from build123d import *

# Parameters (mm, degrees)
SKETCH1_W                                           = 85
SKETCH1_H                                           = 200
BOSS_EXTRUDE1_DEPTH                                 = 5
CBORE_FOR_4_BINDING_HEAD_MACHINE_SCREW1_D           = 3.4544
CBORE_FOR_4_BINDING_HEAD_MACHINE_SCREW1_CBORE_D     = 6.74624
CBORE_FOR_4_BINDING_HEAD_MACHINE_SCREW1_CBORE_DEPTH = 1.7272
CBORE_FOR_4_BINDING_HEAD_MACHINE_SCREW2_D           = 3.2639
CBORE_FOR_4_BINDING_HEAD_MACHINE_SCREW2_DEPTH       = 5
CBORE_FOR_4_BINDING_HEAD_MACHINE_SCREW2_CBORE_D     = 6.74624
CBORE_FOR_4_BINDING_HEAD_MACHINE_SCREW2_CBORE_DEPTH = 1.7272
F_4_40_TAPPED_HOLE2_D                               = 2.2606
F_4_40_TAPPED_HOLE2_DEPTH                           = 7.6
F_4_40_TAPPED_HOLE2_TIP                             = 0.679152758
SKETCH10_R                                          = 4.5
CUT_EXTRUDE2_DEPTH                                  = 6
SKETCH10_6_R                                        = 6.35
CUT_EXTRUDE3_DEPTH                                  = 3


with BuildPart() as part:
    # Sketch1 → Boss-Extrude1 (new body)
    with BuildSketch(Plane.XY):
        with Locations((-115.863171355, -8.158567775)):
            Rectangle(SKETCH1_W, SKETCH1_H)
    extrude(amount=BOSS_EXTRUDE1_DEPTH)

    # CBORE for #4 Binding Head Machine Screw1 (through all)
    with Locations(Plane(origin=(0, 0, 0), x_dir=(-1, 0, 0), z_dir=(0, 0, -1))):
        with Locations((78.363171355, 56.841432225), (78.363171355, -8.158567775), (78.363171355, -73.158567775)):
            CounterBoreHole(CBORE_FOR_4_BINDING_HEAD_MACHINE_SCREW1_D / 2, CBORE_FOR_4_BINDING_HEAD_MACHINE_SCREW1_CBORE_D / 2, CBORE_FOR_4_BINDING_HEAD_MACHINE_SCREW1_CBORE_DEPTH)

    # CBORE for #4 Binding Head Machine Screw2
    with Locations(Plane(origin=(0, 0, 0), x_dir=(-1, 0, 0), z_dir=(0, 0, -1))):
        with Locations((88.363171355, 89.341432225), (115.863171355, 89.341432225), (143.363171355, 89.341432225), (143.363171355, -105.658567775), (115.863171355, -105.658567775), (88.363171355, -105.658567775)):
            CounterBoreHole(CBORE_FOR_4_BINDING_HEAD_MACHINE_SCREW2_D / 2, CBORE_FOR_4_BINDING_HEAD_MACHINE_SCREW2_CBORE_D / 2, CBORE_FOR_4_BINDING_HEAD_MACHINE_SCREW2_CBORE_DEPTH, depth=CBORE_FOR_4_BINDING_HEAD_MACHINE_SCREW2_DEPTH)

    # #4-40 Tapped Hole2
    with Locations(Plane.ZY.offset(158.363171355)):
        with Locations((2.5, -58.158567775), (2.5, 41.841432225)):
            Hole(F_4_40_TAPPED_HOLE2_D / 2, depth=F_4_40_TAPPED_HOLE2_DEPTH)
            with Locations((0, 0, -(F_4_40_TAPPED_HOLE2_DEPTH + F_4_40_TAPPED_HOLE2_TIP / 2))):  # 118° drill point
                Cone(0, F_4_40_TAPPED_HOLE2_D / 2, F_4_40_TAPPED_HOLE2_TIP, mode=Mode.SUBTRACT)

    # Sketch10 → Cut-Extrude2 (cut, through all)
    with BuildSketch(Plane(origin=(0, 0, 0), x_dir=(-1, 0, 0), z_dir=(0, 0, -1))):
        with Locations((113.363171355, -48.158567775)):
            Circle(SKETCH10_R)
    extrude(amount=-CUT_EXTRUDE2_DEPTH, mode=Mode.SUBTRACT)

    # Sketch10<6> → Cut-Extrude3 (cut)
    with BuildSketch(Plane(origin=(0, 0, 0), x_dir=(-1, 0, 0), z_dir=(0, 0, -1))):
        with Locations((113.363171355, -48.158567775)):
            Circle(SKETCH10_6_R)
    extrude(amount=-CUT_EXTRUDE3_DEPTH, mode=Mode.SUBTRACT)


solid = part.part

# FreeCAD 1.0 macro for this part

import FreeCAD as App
import Part
import Sketcher
from FreeCAD import Vector


def add_polygon(sketch, points):
    """Adds a closed chain of lines whose ends are joined by coincident constraints."""
    first, n = sketch.GeometryCount, len(points)
    for a, b in zip(points, points[1:] + points[:1]):
        sketch.addGeometry(Part.LineSegment(App.Vector(*a, 0), App.Vector(*b, 0)), False)
    for i in range(n):
        sketch.addConstraint(Sketcher.Constraint("Coincident", first + i, 2, first + (i + 1) % n, 1))

doc = App.newDocument("Part")
body = doc.addObject("PartDesign::Body", "Body")

sketch1 = body.newObject("Sketcher::SketchObject", "Sketch")
sketch1.AttachmentSupport = (doc.getObject("XY_Plane"), [""])
sketch1.MapMode = "FlatFace"
add_polygon(sketch1, [(-158.363171, 91.841432), (-158.363171, -108.158568), (-73.363171, -108.158568), (-73.363171, 91.841432)])
sketch1.addConstraint([
    Sketcher.Constraint("Vertical", 0),
    Sketcher.Constraint("Horizontal", 1),
    Sketcher.Constraint("Vertical", 2),
    Sketcher.Constraint("Horizontal", 3),
    Sketcher.Constraint("DistanceX", 1, 1, 1, 2, 85.0),
    Sketcher.Constraint("DistanceY", 0, 2, 0, 1, 200.0),
    Sketcher.Constraint("DistanceX", 0, 2, -1, 1, 158.363171),
    Sketcher.Constraint("DistanceY", 0, 2, -1, 1, 108.158568),
])
pad1 = body.newObject("PartDesign::Pad", "Pad")
pad1.Profile = sketch1
pad1.Length = 5

sketch2 = body.newObject("Sketcher::SketchObject", "Sketch001")
sketch2.AttachmentSupport = (doc.getObject("XY_Plane"), [""])
sketch2.MapMode = "FlatFace"
sketch2.addGeometry([
    Part.Circle(Vector(-78.363171, 56.841432, 0), Vector(0, 0, 1), 1.7272),
    Part.Circle(Vector(-78.363171, -8.158568, 0), Vector(0, 0, 1), 1.7272),
    Part.Circle(Vector(-78.363171, -73.158568, 0), Vector(0, 0, 1), 1.7272),
], False)
sketch2.addConstraint([
    Sketcher.Constraint("Equal", 0, 1),
    Sketcher.Constraint("Equal", 1, 2),
    Sketcher.Constraint("Vertical", 0, 3, 1, 3),
    Sketcher.Constraint("Vertical", 1, 3, 2, 3),
    Sketcher.Constraint("DistanceY", 1, 3, 0, 3, 65.0),
    Sketcher.Constraint("DistanceY", 2, 3, 1, 3, 65.0),
    Sketcher.Constraint("Diameter", 0, 3.4544),
    Sketcher.Constraint("DistanceX", 0, 3, -1, 1, 78.363171),
    Sketcher.Constraint("DistanceY", -1, 1, 0, 3, 56.841432),
])
doc.recompute()
hole = body.newObject("PartDesign::Hole", "Hole")
hole.Profile = sketch2
hole.ThreadType = "None"
hole.Diameter = 3.4544
hole.DepthType = "ThroughAll"
hole.HoleCutType = "Counterbore"
hole.HoleCutDiameter = 6.74624
hole.HoleCutDepth = 1.7272
hole.Reversed = True

sketch3 = body.newObject("Sketcher::SketchObject", "Sketch002")
sketch3.AttachmentSupport = (doc.getObject("XY_Plane"), [""])
sketch3.MapMode = "FlatFace"
sketch3.addGeometry([
    Part.Circle(Vector(-88.363171, 89.341432, 0), Vector(0, 0, 1), 1.63195),
    Part.Circle(Vector(-115.863171, 89.341432, 0), Vector(0, 0, 1), 1.63195),
    Part.Circle(Vector(-143.363171, 89.341432, 0), Vector(0, 0, 1), 1.63195),
    Part.Circle(Vector(-143.363171, -105.658568, 0), Vector(0, 0, 1), 1.63195),
    Part.Circle(Vector(-115.863171, -105.658568, 0), Vector(0, 0, 1), 1.63195),
    Part.Circle(Vector(-88.363171, -105.658568, 0), Vector(0, 0, 1), 1.63195),
], False)
sketch3.addConstraint([
    Sketcher.Constraint("Equal", 0, 1),
    Sketcher.Constraint("Equal", 1, 2),
    Sketcher.Constraint("Equal", 2, 3),
    Sketcher.Constraint("Equal", 3, 4),
    Sketcher.Constraint("Equal", 4, 5),
    Sketcher.Constraint("Horizontal", 0, 3, 1, 3),
    Sketcher.Constraint("Horizontal", 1, 3, 2, 3),
    Sketcher.Constraint("Horizontal", 3, 3, 4, 3),
    Sketcher.Constraint("Horizontal", 4, 3, 5, 3),
    Sketcher.Constraint("Vertical", 2, 3, 3, 3),
    Sketcher.Constraint("Vertical", 1, 3, 4, 3),
    Sketcher.Constraint("Vertical", 0, 3, 5, 3),
    Sketcher.Constraint("DistanceX", 2, 3, 0, 3, 55.0),
    Sketcher.Constraint("DistanceY", 3, 3, 2, 3, 195.0),
    Sketcher.Constraint("Diameter", 0, 3.2639),
    Sketcher.Constraint("DistanceX", 1, 3, 0, 3, 27.5),
    Sketcher.Constraint("DistanceX", 0, 3, -1, 1, 88.363171),
    Sketcher.Constraint("DistanceY", -1, 1, 0, 3, 89.341432),
])
doc.recompute()
hole2 = body.newObject("PartDesign::Hole", "Hole001")
hole2.Profile = sketch3
hole2.ThreadType = "None"
hole2.Diameter = 3.2639
hole2.DepthType = "Dimension"
hole2.Depth = 5
hole2.DrillPoint = "Flat"
hole2.HoleCutType = "Counterbore"
hole2.HoleCutDiameter = 6.74624
hole2.HoleCutDepth = 1.7272
hole2.Reversed = True

sketch4 = body.newObject("Sketcher::SketchObject", "Sketch003")
sketch4.AttachmentSupport = (doc.getObject("YZ_Plane"), [""])
sketch4.MapMode = "FlatFace"
sketch4.AttachmentOffset = App.Placement(Vector(0, 0, -158.363171), App.Rotation())
sketch4.addGeometry([
    Part.Circle(Vector(-58.158568, 2.5, 0), Vector(0, 0, 1), 1.1303),
    Part.Circle(Vector(41.841432, 2.5, 0), Vector(0, 0, 1), 1.1303),
], False)
sketch4.addConstraint([
    Sketcher.Constraint("Equal", 0, 1),
    Sketcher.Constraint("Horizontal", 0, 3, 1, 3),
    Sketcher.Constraint("DistanceX", 0, 3, 1, 3, 100.0),
    Sketcher.Constraint("Diameter", 0, 2.2606),
    Sketcher.Constraint("DistanceY", -1, 1, 0, 3, 2.5),
    Sketcher.Constraint("DistanceX", 0, 3, -1, 1, 58.158568),
])
doc.recompute()
hole3 = body.newObject("PartDesign::Hole", "Hole002")
hole3.Profile = sketch4
hole3.ThreadType = "None"
hole3.Diameter = 2.2606
hole3.DepthType = "Dimension"
hole3.Depth = 7.6
hole3.DrillPoint = "Angled"
hole3.DrillPointAngle = 118
hole3.Reversed = True

sketch5 = body.newObject("Sketcher::SketchObject", "Sketch004")
sketch5.AttachmentSupport = (doc.getObject("XY_Plane"), [""])
sketch5.MapMode = "FlatFace"
sketch5.addGeometry(Part.Circle(Vector(-113.363171, -48.158568, 0), Vector(0, 0, 1), 4.5), False)
sketch5.addConstraint([
    Sketcher.Constraint("Diameter", 0, 9.0),
    Sketcher.Constraint("DistanceX", 0, 3, -1, 1, 113.363171),
    Sketcher.Constraint("DistanceY", 0, 3, -1, 1, 48.158568),
])
pocket1 = body.newObject("PartDesign::Pocket", "Pocket")
pocket1.Profile = sketch5
pocket1.Type = "ThroughAll"
pocket1.Reversed = True

sketch6 = body.newObject("Sketcher::SketchObject", "Sketch005")
sketch6.AttachmentSupport = (doc.getObject("XY_Plane"), [""])
sketch6.MapMode = "FlatFace"
sketch6.addGeometry(Part.Circle(Vector(-113.363171, -48.158568, 0), Vector(0, 0, 1), 6.35), False)
sketch6.addConstraint([
    Sketcher.Constraint("Diameter", 0, 12.7),
    Sketcher.Constraint("DistanceX", 0, 3, -1, 1, 113.363171),
    Sketcher.Constraint("DistanceY", 0, 3, -1, 1, 48.158568),
])
pocket2 = body.newObject("PartDesign::Pocket", "Pocket001")
pocket2.Profile = sketch6
pocket2.Length = 3
pocket2.Reversed = True

doc.recompute()
